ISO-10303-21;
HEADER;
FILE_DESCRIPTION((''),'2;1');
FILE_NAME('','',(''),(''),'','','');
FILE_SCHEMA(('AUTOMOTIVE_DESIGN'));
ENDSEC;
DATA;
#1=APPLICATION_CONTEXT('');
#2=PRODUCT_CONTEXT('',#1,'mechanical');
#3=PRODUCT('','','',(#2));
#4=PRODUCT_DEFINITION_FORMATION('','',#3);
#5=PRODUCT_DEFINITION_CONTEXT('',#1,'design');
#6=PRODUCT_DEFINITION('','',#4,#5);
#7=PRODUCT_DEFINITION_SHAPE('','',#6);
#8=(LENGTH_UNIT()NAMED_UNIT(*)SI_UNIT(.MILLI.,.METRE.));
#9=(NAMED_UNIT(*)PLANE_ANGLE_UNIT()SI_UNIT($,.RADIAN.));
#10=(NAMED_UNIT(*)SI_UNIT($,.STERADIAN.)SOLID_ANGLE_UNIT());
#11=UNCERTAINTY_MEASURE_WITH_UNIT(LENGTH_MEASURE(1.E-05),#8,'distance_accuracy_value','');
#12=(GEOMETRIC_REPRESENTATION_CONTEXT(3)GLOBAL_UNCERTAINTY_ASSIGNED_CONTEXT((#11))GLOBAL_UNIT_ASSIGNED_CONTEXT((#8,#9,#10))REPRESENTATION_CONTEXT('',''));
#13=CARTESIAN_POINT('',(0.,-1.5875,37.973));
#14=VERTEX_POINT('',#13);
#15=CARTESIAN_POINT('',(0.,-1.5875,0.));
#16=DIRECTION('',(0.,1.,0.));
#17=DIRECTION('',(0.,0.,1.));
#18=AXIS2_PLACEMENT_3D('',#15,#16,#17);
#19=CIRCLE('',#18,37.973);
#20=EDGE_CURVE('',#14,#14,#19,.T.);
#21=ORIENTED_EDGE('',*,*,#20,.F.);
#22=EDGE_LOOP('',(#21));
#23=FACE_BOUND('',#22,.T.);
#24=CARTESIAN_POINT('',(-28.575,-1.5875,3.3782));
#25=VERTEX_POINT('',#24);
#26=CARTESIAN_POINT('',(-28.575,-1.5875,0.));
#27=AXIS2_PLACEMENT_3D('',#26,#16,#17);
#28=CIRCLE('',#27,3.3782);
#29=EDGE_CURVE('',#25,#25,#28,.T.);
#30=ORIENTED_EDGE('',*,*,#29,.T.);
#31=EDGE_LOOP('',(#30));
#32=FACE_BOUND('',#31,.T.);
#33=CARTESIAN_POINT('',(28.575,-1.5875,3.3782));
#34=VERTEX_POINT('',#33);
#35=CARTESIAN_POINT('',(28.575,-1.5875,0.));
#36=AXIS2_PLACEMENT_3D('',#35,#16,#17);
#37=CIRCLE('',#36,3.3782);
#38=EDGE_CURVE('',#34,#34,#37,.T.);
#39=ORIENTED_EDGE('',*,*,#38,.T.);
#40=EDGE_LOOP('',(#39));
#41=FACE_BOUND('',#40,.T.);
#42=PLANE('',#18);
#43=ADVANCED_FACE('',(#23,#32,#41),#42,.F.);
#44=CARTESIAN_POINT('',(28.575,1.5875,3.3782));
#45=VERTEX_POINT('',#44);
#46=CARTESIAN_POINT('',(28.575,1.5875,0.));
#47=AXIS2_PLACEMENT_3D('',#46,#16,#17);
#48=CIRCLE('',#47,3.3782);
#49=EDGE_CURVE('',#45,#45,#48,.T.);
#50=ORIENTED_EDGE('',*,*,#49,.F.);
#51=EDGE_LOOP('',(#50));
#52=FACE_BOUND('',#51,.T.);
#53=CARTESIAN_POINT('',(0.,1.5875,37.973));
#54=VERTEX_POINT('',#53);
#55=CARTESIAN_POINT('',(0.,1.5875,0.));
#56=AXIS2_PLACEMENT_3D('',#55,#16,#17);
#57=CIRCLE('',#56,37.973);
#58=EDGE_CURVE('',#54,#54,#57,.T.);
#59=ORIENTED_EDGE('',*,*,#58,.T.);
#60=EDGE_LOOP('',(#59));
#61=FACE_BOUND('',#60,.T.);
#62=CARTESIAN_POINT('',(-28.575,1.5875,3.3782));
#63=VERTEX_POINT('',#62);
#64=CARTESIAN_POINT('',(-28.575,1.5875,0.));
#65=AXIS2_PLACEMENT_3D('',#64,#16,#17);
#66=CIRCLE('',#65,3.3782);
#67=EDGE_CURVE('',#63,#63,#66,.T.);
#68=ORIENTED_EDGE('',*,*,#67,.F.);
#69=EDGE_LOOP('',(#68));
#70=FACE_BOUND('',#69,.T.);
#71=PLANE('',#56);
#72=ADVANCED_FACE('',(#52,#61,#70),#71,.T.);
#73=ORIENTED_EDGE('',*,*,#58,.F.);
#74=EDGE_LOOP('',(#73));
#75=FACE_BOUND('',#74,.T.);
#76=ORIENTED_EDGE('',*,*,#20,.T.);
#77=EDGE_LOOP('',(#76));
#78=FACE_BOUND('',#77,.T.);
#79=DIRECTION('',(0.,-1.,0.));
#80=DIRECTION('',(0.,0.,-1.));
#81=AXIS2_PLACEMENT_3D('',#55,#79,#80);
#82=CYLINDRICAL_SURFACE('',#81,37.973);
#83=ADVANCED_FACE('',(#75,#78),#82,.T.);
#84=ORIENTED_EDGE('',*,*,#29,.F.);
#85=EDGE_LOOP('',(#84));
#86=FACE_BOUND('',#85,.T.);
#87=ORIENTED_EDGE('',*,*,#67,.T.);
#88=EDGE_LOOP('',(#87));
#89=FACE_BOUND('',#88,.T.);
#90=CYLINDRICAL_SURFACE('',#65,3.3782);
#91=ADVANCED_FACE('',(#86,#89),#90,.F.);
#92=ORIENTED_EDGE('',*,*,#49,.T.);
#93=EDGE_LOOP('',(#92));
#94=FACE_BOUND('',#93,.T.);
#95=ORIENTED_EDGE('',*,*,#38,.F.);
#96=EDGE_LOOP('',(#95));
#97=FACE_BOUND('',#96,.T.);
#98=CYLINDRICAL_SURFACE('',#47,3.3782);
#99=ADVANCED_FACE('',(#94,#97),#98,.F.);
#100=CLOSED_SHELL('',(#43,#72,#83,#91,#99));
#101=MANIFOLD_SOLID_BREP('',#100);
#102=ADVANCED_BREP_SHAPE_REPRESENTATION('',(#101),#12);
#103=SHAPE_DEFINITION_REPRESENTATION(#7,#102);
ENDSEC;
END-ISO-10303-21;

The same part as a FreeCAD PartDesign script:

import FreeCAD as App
import Part
import Sketcher
from FreeCAD import Vector
Q = App.Units.Quantity

doc = App.newDocument("Part")
body = doc.addObject("PartDesign::Body", "Body")

sketch1 = body.newObject("Sketcher::SketchObject", "Sketch")
sketch1.AttachmentSupport = (doc.getObject("XZ_Plane"), [""])
sketch1.MapMode = "FlatFace"
sketch1.addGeometry(Part.Circle(Vector(0, 0, 0), Vector(0, 0, 1), 38), False)
sketch1.addConstraint(Sketcher.Constraint("Coincident", 0, 3, -1, 1))
sketch1.addConstraint(Sketcher.Constraint("Diameter", 0, Q("2.99 in")))
pad1 = body.newObject("PartDesign::Pad", "Pad")
pad1.Profile = sketch1
pad1.Length = Q("0.125 in")
pad1.Midplane = True

sketch2 = body.newObject("Sketcher::SketchObject", "Sketch001")
sketch2.AttachmentSupport = (doc.getObject("XZ_Plane"), [""])
sketch2.MapMode = "FlatFace"
sketch2.AttachmentOffset = App.Placement(Vector(0, 0, -0.0625 * 25.4), App.Rotation())
sketch2.addGeometry(Part.Circle(Vector(-28.6, 0, 0), Vector(0, 0, 1), 3.4), False)
sketch2.addGeometry(Part.Circle(Vector(28.6, 0, 0), Vector(0, 0, 1), 3.4), False)
sketch2.addConstraint(Sketcher.Constraint("Equal", 0, 1))
sketch2.addConstraint(Sketcher.Constraint("Symmetric", 0, 3, 1, 3, -1, 1))
sketch2.addConstraint(Sketcher.Constraint("PointOnObject", 0, 3, -1))
sketch2.addConstraint(Sketcher.Constraint("Diameter", 0, Q("0.266 in")))
sketch2.addConstraint(Sketcher.Constraint("DistanceX", 0, 3, 1, 3, Q("2.25 in")))
doc.recompute()
hole = body.newObject("PartDesign::Hole", "Hole")
hole.Profile = sketch2
hole.ThreadType = "None"
hole.Diameter = Q("0.266 in")
hole.DepthType = "ThroughAll"
hole.Reversed = True

doc.recompute()
